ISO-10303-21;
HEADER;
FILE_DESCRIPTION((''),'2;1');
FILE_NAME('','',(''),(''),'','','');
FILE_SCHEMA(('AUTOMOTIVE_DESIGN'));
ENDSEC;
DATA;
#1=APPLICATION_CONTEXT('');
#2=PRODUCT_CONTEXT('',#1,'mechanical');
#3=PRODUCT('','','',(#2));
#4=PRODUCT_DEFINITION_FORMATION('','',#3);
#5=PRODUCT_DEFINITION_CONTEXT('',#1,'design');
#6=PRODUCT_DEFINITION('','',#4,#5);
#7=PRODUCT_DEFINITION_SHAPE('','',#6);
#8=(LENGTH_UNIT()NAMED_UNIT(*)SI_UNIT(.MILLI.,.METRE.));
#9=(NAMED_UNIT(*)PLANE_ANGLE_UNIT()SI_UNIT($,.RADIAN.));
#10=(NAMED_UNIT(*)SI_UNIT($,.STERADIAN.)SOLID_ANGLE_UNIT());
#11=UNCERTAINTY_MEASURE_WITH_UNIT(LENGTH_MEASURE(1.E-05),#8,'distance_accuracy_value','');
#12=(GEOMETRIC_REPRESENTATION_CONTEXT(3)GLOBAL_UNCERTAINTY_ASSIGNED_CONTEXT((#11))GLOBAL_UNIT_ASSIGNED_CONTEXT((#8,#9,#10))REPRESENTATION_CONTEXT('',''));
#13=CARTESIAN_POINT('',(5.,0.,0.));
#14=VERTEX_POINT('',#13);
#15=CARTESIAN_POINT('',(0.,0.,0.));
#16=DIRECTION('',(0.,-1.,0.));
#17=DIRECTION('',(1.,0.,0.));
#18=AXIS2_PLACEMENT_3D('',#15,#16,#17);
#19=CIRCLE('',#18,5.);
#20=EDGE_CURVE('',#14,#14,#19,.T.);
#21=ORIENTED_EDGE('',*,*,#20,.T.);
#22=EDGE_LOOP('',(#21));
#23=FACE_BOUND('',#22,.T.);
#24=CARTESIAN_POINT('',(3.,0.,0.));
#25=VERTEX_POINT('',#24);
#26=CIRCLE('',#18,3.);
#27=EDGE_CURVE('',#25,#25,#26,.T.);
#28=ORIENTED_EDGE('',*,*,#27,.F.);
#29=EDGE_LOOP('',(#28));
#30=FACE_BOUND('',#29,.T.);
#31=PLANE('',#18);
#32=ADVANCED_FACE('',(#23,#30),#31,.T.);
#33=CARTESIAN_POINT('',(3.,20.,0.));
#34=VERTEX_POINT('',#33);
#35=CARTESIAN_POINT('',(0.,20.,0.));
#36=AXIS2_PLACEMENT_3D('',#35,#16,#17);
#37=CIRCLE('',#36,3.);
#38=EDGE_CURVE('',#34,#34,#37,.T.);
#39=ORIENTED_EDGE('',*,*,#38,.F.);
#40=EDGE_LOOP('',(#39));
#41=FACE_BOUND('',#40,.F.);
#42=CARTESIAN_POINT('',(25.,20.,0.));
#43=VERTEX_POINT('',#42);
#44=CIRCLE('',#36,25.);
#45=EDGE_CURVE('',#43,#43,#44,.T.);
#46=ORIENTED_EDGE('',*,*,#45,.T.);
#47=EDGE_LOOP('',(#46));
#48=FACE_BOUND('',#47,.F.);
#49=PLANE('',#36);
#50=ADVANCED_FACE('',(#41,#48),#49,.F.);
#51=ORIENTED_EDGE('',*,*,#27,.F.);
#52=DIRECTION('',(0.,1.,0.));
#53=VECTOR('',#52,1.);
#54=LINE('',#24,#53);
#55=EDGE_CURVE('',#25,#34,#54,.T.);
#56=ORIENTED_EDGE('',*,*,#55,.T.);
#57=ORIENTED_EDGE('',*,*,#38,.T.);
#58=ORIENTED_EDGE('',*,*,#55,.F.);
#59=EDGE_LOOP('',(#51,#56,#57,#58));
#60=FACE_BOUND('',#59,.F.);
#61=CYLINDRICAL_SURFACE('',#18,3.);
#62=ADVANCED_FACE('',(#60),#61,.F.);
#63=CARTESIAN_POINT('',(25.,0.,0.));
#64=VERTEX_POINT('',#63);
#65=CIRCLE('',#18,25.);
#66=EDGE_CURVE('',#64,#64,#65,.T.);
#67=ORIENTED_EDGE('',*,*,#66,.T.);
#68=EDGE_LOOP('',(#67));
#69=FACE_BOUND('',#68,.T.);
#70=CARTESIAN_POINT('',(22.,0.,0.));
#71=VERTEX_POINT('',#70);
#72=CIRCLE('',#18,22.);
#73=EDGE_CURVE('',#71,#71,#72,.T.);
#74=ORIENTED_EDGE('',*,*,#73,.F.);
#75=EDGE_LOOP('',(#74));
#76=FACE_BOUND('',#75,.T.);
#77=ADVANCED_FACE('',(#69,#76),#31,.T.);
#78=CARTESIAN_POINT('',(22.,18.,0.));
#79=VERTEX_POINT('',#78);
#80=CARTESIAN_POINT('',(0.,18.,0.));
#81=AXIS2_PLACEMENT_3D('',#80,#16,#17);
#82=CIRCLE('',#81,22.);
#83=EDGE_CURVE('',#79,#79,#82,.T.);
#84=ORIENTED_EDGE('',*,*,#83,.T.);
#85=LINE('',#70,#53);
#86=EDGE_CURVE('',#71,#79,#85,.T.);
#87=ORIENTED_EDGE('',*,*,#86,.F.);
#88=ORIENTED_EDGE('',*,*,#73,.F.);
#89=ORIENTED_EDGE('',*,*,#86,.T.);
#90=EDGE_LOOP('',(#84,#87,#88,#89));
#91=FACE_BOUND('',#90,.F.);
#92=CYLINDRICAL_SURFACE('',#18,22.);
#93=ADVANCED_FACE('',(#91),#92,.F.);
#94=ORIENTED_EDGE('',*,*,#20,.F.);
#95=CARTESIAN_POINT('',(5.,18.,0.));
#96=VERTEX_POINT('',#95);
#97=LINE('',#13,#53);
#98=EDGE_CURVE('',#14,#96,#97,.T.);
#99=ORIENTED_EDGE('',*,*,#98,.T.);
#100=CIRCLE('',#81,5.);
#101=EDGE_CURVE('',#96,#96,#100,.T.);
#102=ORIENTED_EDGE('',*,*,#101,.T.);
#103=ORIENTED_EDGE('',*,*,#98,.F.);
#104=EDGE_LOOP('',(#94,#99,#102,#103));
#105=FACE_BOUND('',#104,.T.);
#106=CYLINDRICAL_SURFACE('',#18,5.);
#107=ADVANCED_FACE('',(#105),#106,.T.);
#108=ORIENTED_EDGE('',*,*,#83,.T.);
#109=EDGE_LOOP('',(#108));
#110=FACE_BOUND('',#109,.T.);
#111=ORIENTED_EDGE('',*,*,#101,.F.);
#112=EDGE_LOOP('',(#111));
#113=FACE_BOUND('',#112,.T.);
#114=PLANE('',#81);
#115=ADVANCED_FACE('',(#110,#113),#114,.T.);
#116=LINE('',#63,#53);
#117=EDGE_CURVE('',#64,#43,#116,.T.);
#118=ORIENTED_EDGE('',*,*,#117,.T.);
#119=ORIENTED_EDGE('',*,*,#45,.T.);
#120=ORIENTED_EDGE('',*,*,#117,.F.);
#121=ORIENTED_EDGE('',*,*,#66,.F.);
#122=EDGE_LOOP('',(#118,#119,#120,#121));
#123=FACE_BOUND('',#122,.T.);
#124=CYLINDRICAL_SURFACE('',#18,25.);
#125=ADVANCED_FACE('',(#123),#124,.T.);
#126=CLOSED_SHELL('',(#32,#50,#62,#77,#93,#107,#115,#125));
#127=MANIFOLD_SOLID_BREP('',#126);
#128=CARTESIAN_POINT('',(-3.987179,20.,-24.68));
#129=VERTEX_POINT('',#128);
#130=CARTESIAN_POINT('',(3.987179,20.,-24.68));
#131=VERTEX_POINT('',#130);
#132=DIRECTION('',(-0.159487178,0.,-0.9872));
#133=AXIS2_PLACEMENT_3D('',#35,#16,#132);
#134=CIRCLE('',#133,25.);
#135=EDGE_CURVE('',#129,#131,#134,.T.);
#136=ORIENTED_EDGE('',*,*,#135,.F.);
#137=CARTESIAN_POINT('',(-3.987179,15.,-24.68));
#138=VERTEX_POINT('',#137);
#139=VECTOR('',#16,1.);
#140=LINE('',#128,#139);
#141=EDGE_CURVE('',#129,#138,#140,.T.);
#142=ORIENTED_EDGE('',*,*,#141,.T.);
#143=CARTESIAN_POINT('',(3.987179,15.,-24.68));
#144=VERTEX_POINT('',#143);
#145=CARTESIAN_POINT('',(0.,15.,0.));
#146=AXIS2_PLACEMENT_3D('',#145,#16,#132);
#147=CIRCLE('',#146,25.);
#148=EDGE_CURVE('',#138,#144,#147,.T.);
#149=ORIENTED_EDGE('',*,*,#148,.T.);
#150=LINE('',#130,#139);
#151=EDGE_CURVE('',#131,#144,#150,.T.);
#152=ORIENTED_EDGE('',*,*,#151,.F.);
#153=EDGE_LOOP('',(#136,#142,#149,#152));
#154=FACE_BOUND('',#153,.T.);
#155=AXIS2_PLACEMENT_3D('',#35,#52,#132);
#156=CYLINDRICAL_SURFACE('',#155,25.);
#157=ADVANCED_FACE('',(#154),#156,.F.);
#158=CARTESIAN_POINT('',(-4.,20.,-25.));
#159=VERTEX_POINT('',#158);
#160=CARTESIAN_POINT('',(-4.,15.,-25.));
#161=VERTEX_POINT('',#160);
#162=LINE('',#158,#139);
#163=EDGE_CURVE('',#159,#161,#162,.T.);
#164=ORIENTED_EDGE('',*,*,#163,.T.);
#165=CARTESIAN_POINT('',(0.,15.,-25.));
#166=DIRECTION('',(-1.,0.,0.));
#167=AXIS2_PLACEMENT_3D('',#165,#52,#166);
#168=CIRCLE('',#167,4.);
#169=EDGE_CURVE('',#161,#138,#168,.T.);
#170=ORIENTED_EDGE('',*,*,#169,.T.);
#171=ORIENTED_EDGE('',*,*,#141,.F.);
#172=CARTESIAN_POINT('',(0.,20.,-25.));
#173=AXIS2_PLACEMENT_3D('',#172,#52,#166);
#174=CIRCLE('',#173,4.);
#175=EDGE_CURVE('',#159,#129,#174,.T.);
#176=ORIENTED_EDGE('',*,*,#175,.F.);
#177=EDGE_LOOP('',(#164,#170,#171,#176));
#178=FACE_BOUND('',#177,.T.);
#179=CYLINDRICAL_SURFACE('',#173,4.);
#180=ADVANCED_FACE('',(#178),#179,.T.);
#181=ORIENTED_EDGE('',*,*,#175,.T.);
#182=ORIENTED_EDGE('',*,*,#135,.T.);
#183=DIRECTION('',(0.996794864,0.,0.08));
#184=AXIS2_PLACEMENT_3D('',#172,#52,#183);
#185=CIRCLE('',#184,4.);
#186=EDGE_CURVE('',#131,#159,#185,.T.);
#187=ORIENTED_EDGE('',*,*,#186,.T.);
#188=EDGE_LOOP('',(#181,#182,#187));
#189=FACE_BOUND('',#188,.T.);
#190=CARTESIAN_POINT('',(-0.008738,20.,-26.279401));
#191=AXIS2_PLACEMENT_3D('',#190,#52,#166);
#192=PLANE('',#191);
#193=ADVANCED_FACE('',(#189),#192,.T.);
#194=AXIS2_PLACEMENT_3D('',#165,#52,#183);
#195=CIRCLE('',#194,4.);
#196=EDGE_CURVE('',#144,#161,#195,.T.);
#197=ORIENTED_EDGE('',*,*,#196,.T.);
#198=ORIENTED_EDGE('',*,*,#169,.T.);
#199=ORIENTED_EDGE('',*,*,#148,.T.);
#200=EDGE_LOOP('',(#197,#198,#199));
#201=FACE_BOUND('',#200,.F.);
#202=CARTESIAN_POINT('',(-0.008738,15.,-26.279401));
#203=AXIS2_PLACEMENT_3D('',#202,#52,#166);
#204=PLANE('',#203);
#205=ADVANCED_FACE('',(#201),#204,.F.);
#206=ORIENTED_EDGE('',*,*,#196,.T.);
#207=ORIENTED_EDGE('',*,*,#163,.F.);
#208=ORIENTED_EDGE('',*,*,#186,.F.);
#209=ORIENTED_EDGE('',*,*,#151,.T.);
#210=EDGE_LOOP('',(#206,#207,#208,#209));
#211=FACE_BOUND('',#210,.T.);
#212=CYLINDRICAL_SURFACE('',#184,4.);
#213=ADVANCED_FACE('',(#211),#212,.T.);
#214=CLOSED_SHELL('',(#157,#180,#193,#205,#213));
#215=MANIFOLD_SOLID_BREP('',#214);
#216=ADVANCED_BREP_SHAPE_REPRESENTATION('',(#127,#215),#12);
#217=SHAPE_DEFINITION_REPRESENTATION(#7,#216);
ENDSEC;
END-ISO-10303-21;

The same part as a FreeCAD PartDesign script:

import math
import FreeCAD as App
import Part
import Sketcher

V = App.Vector

doc = App.newDocument("Part")
body = doc.addObject("PartDesign::Body", "Body")

# Sketch on XZ plane
sketch1 = doc.addObject("Sketcher::SketchObject", "Sketch")
body.addObject(sketch1)
sketch1.AttachmentSupport = (doc.XZ_Plane, [""])
sketch1.MapMode = "FlatFace"
sketch1.addGeometry(Part.Circle(V(0, 0, 0), V(0, 0, 1), 25), False)
sketch1.addGeometry(Part.Circle(V(0, 0, 0), V(0, 0, 1), 3), False)
sketch1.addConstraint(Sketcher.Constraint("Coincident", 0, 3, -1, 1))
sketch1.addConstraint(Sketcher.Constraint("Coincident", 1, 3, -1, 1))
sketch1.addConstraint(Sketcher.Constraint("Diameter", 0, 50.0))
sketch1.addConstraint(Sketcher.Constraint("Diameter", 1, 6.0))
pad1 = doc.addObject("PartDesign::Pad", "Pad")
body.addObject(pad1)
pad1.Profile = sketch1
pad1.Length = 20
pad1.Reversed = True

# Sketch on XZ plane
sketch2 = doc.addObject("Sketcher::SketchObject", "Sketch001")
body.addObject(sketch2)
sketch2.AttachmentSupport = (doc.XZ_Plane, [""])
sketch2.MapMode = "FlatFace"
sketch2.addGeometry(Part.Circle(V(0, 0, 0), V(0, 0, 1), 22), False)
sketch2.addGeometry(Part.Circle(V(0, 0, 0), V(0, 0, 1), 5), False)
sketch2.addConstraint(Sketcher.Constraint("Coincident", 0, 3, -1, 1))
sketch2.addConstraint(Sketcher.Constraint("Coincident", 1, 3, -1, 1))
sketch2.addConstraint(Sketcher.Constraint("Diameter", 0, 44.0))
sketch2.addConstraint(Sketcher.Constraint("Diameter", 1, 10.0))
pocket1 = doc.addObject("PartDesign::Pocket", "Pocket")
body.addObject(pocket1)
pocket1.Profile = sketch2
pocket1.Length = 18
body2 = doc.addObject("PartDesign::Body", "Body001")

# Sketch on XZ plane
sketch3 = doc.addObject("Sketcher::SketchObject", "Sketch002")
body2.addObject(sketch3)
sketch3.AttachmentSupport = (doc.getObject("XZ_Plane001"), [""])
sketch3.MapMode = "FlatFace"
sketch3.AttachmentOffset = App.Placement(V(0, 0, -20), App.Rotation())
sketch3.addGeometry(Part.ArcOfCircle(Part.Circle(V(0, -25, 0), V(0, 0, 1), 4), math.radians(180), math.radians(364.588566)), False)
sketch3.addGeometry(Part.ArcOfCircle(Part.Circle(V(0, -25, 0), V(0, 0, 1), 4), math.radians(175.411434), math.radians(180)), False)
sketch3.addGeometry(Part.ArcOfCircle(Part.Circle(V(0, 0, 0), V(0, 0, 1), 25), math.radians(-99.177131), math.radians(-80.822869)), False)
sketch3.addConstraint(Sketcher.Constraint("Tangent", 0, 1, 1, 2))
sketch3.addConstraint(Sketcher.Constraint("Coincident", 1, 1, 2, 1))
sketch3.addConstraint(Sketcher.Constraint("Coincident", 2, 2, 0, 2))
sketch3.addConstraint(Sketcher.Constraint("Coincident", 2, 3, -1, 1))
sketch3.addConstraint(Sketcher.Constraint("Equal", 0, 1))
sketch3.addConstraint(Sketcher.Constraint("PointOnObject", 0, 3, -2))
sketch3.addConstraint(Sketcher.Constraint("Horizontal", 1, 3, 0, 1))
sketch3.addConstraint(Sketcher.Constraint("Radius", 0, 4.0))
sketch3.addConstraint(Sketcher.Constraint("Radius", 2, 25.0))
sketch3.addConstraint(Sketcher.Constraint("DistanceY", 0, 3, -1, 1, 25.0))
pad2 = doc.addObject("PartDesign::Pad", "Pad001")
body2.addObject(pad2)
pad2.Profile = sketch3
pad2.Length = 5

doc.recompute()
